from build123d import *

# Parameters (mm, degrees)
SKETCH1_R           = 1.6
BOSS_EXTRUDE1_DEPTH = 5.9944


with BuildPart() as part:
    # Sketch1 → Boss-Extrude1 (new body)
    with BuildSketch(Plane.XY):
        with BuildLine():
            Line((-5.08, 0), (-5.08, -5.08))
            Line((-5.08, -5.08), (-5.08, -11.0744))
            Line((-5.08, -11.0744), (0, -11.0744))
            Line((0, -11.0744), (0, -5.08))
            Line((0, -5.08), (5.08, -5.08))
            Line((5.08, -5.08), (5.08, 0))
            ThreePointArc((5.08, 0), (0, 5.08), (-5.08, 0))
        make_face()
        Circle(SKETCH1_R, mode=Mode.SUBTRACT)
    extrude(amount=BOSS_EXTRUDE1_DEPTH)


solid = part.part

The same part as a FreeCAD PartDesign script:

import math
import FreeCAD as App
import Part
import Sketcher

V = App.Vector
Q = App.Units.Quantity

doc = App.newDocument("Part")
body = doc.addObject("PartDesign::Body", "Body")

# Sketch on XY plane
sketch1 = body.newObject("Sketcher::SketchObject", "Sketch")
sketch1.AttachmentSupport = (doc.getObject("XY_Plane"), [""])
sketch1.MapMode = "FlatFace"
sketch1.addGeometry(Part.LineSegment(V(-5.1, 0, 0), V(-5.1, -11.1, 0)), False)
sketch1.addGeometry(Part.LineSegment(V(-5.1, -11.1, 0), V(0, -11.1, 0)), False)
sketch1.addGeometry(Part.LineSegment(V(0, -11.1, 0), V(0, -5.1, 0)), False)
sketch1.addGeometry(Part.LineSegment(V(0, -5.1, 0), V(5.1, -5.1, 0)), False)
sketch1.addGeometry(Part.LineSegment(V(5.1, -5.1, 0), V(5.1, 0, 0)), False)
sketch1.addGeometry(Part.ArcOfCircle(Part.Circle(V(0, 0, 0), V(0, 0, 1), 5.1), math.radians(0), math.radians(180)), False)
sketch1.addGeometry(Part.Circle(V(0, 0, 0), V(0, 0, 1), 1.6), False)
sketch1.addConstraint(Sketcher.Constraint("Coincident", 0, 2, 1, 1))
sketch1.addConstraint(Sketcher.Constraint("Coincident", 1, 2, 2, 1))
sketch1.addConstraint(Sketcher.Constraint("Coincident", 2, 2, 3, 1))
sketch1.addConstraint(Sketcher.Constraint("Coincident", 3, 2, 4, 1))
sketch1.addConstraint(Sketcher.Constraint("Tangent", 4, 2, 5, 1))
sketch1.addConstraint(Sketcher.Constraint("Tangent", 5, 2, 0, 1))
sketch1.addConstraint(Sketcher.Constraint("Vertical", 0))
sketch1.addConstraint(Sketcher.Constraint("Horizontal", 1))
sketch1.addConstraint(Sketcher.Constraint("Vertical", 2))
sketch1.addConstraint(Sketcher.Constraint("Horizontal", 3))
sketch1.addConstraint(Sketcher.Constraint("Vertical", 4))
sketch1.addConstraint(Sketcher.Constraint("Coincident", 5, 3, -1, 1))
sketch1.addConstraint(Sketcher.Constraint("Coincident", 6, 3, -1, 1))
sketch1.addConstraint(Sketcher.Constraint("PointOnObject", 1, 2, -2))
sketch1.addConstraint(Sketcher.Constraint("Equal", 3, 4))
sketch1.addConstraint(Sketcher.Constraint("Radius", 5, Q("0.2 in")))
sketch1.addConstraint(Sketcher.Constraint("Diameter", 6, 3.2))
sketch1.addConstraint(Sketcher.Constraint("DistanceY", 0, 2, 0, 1, Q("0.436 in")))
pad1 = body.newObject("PartDesign::Pad", "Pad")
pad1.Profile = sketch1
pad1.Length = Q("0.236 in")

doc.recompute()
